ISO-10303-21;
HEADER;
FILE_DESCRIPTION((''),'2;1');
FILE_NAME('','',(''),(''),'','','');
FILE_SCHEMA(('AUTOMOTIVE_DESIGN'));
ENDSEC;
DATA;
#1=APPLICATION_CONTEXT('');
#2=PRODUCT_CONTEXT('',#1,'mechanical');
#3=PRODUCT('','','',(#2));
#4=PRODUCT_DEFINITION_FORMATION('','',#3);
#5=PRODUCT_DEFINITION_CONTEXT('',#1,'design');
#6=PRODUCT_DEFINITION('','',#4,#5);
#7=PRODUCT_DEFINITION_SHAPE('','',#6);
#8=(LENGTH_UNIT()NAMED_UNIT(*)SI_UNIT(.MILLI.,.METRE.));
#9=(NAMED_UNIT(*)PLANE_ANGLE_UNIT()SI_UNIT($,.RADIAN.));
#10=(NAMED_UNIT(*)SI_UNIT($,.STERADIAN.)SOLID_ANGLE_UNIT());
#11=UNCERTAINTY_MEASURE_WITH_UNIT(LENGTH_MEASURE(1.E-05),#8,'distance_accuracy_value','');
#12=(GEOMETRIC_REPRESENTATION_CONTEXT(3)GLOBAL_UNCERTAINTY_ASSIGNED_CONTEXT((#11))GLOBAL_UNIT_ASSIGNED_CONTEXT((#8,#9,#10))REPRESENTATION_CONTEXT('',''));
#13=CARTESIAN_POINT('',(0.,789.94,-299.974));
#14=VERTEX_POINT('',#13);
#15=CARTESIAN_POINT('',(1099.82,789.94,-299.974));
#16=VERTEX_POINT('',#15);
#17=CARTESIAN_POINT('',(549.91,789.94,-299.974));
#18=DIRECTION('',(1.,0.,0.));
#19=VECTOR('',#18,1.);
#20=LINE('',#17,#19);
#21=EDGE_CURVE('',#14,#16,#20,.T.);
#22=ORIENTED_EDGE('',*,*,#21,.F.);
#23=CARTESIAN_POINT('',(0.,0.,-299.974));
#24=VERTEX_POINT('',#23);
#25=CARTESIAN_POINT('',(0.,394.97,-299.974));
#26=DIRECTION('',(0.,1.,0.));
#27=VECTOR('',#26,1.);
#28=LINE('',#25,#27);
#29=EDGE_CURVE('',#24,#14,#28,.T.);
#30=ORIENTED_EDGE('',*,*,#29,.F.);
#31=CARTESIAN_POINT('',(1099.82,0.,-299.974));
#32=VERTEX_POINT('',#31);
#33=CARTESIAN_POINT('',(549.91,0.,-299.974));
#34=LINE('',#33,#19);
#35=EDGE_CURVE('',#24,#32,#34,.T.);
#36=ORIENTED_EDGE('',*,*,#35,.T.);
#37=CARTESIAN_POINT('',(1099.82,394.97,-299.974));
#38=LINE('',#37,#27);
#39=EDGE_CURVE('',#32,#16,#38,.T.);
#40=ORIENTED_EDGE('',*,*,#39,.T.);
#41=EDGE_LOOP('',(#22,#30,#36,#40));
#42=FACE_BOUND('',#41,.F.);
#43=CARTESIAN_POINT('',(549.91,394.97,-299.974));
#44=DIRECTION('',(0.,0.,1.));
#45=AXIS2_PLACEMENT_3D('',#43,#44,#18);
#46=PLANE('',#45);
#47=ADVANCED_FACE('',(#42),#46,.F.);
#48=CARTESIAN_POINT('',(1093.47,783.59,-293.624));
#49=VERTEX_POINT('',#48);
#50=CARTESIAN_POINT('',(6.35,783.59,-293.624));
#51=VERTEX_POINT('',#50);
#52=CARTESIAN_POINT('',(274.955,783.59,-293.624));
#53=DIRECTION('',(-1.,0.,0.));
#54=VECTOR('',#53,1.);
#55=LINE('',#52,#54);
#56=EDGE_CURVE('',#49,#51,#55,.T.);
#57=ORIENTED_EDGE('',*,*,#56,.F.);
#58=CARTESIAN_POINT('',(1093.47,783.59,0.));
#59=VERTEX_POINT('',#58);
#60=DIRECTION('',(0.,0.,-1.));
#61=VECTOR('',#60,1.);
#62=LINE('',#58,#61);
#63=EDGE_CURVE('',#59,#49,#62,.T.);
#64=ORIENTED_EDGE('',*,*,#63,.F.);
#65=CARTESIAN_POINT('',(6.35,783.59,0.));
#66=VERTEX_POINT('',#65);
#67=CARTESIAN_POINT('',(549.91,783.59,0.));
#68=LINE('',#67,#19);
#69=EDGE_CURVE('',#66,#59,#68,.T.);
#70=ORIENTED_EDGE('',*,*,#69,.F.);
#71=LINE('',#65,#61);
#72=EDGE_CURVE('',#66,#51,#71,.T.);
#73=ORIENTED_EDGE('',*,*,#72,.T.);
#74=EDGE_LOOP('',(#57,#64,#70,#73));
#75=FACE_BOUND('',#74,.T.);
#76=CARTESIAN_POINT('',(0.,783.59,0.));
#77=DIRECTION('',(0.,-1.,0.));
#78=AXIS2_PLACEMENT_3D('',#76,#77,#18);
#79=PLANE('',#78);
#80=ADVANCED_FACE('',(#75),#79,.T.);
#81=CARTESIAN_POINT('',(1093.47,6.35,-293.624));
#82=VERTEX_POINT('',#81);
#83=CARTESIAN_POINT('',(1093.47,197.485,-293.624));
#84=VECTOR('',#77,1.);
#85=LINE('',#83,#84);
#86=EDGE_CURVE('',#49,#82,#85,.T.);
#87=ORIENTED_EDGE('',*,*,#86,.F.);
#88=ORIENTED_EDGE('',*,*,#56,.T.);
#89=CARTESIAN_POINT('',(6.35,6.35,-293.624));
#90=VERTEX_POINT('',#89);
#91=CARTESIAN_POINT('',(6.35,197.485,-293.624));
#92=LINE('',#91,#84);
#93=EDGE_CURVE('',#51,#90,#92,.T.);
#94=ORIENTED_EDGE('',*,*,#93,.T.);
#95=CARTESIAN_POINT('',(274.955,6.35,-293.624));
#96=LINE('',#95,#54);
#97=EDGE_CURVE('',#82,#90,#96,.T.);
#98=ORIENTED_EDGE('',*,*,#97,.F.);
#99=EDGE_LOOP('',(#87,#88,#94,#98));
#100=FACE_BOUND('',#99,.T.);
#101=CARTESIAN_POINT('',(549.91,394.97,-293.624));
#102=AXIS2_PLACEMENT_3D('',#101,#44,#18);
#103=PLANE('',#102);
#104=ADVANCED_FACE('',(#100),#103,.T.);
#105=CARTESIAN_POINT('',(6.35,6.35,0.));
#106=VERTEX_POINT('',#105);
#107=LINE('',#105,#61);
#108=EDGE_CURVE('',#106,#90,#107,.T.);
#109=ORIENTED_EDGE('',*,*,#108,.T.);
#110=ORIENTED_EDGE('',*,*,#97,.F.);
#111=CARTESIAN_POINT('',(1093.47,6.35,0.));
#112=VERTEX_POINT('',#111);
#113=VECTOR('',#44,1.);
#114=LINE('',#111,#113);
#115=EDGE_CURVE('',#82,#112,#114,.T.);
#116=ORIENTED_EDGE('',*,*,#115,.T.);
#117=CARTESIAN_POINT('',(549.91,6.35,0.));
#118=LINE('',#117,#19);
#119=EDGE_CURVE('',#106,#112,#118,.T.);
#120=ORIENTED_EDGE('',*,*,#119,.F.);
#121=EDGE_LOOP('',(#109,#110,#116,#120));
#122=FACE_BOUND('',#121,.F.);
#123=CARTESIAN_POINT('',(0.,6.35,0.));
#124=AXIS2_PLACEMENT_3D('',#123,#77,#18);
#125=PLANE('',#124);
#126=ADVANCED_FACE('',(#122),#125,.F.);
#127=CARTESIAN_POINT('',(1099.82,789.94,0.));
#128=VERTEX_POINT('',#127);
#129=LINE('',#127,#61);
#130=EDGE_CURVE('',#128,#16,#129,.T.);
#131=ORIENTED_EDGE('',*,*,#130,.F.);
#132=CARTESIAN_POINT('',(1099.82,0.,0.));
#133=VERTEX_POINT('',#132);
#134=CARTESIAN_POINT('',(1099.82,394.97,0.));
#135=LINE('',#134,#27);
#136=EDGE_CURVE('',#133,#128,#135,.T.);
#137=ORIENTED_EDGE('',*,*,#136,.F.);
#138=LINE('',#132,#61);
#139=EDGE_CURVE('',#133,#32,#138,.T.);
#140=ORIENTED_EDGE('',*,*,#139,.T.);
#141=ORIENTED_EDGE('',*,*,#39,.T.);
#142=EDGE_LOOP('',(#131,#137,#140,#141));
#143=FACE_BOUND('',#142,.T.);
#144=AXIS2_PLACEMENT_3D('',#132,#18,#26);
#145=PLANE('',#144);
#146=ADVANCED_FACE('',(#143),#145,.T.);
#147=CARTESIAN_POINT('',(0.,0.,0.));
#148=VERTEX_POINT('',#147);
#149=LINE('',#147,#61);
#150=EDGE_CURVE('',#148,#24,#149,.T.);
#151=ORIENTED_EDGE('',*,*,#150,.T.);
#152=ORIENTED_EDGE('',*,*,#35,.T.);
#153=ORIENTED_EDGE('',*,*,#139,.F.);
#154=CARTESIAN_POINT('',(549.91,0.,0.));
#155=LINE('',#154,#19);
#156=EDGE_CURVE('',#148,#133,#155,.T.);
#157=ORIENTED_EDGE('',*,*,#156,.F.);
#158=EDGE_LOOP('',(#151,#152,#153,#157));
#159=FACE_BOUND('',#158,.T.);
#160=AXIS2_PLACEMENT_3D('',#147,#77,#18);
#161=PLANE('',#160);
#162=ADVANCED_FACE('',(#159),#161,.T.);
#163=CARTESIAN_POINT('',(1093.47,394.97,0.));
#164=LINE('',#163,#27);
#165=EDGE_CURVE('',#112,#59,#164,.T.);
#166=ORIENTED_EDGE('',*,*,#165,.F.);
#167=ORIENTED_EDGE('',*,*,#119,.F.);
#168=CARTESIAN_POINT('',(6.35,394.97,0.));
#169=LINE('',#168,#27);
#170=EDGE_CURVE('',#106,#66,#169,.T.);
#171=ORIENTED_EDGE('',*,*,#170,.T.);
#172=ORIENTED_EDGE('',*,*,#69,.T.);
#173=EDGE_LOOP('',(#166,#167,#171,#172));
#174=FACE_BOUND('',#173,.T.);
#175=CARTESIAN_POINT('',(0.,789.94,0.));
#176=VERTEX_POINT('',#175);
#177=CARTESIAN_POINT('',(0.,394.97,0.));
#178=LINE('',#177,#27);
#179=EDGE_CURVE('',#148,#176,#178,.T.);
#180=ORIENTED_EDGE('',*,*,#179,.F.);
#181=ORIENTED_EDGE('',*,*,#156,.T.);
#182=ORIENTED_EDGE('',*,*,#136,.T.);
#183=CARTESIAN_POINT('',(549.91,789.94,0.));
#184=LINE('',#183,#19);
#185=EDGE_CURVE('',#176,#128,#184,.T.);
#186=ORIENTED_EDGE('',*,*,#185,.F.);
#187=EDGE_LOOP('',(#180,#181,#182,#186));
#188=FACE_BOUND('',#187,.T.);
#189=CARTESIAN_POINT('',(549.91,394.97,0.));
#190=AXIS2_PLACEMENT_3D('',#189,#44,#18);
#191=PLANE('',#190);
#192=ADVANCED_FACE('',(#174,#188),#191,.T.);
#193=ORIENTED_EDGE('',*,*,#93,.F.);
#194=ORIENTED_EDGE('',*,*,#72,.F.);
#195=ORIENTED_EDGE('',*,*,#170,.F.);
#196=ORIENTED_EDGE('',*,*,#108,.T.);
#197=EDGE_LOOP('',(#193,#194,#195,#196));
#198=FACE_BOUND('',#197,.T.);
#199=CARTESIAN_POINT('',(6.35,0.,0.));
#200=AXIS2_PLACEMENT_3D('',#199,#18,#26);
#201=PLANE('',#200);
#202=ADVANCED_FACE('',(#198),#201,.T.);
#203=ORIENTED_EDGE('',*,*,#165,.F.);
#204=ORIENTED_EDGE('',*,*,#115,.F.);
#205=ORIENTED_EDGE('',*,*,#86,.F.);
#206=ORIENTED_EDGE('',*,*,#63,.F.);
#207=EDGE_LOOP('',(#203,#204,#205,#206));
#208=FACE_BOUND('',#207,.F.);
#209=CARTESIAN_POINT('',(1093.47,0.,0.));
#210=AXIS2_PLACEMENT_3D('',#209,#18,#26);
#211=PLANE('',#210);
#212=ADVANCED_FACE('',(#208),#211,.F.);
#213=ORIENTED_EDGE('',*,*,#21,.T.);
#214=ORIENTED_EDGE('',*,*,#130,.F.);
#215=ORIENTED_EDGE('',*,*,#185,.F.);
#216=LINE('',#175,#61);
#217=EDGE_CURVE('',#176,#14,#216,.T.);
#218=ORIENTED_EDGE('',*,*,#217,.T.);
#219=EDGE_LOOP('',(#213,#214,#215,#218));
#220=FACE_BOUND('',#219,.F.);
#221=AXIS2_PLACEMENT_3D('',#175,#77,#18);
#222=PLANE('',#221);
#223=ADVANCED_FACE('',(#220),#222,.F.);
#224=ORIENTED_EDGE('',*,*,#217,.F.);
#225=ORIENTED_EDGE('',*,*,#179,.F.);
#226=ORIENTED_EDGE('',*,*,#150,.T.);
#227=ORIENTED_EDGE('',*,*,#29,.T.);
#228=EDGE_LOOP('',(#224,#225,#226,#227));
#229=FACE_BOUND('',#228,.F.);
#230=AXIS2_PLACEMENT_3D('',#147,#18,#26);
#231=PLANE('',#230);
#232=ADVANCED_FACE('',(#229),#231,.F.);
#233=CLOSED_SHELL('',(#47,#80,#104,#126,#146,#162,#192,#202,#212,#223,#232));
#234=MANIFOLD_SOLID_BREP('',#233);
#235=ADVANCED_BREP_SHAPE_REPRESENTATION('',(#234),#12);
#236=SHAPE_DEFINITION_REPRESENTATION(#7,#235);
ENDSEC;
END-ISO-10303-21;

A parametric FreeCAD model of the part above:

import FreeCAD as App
import Part
import Sketcher
from FreeCAD import Vector
Q = App.Units.Quantity


def faces_at(feature, points):
    """Names of the faces that lie closest to the given points."""
    faces = feature.Shape.Faces
    near = lambda p: min(range(len(faces)), key=lambda i: faces[i].distToShape(Part.Vertex(*p))[0])
    return sorted({f"Face{near(p) + 1}" for p in points})


def add_polygon(sketch, points):
    """Adds a closed chain of lines whose ends are joined by coincident constraints."""
    first, n = sketch.GeometryCount, len(points)
    for a, b in zip(points, points[1:] + points[:1]):
        sketch.addGeometry(Part.LineSegment(App.Vector(*a, 0), App.Vector(*b, 0)), False)
    for i in range(n):
        sketch.addConstraint(Sketcher.Constraint("Coincident", first + i, 2, first + (i + 1) % n, 1))

doc = App.newDocument("Part")
body = doc.addObject("PartDesign::Body", "Body")

sketch1 = body.newObject("Sketcher::SketchObject", "Sketch")
sketch1.AttachmentSupport = (doc.getObject("XY_Plane"), [""])
sketch1.MapMode = "FlatFace"
add_polygon(sketch1, [(0, 789.94), (0, 0), (1099.82, 0), (1099.82, 789.94)])
sketch1.addConstraint([
    Sketcher.Constraint("Vertical", 0),
    Sketcher.Constraint("Horizontal", 1),
    Sketcher.Constraint("Vertical", 2),
    Sketcher.Constraint("Horizontal", 3),
    Sketcher.Constraint("Coincident", 0, 2, -1, 1),
    Sketcher.Constraint("DistanceX", 1, 1, 1, 2, Q("43.3 in")),
    Sketcher.Constraint("DistanceY", 0, 2, 0, 1, Q("31.1 in")),
])
pad1 = body.newObject("PartDesign::Pad", "Pad")
pad1.Profile = sketch1
pad1.Length = Q("11.81 in")
pad1.Reversed = True
doc.recompute()

thickness = body.newObject("PartDesign::Thickness", "Thickness")
thickness.Base = (pad1, faces_at(pad1, [(549.91, 394.97, 0)]))
thickness.Value = Q("0.25 in")
thickness.Reversed = True
thickness.Join = "Arc"

doc.recompute()
